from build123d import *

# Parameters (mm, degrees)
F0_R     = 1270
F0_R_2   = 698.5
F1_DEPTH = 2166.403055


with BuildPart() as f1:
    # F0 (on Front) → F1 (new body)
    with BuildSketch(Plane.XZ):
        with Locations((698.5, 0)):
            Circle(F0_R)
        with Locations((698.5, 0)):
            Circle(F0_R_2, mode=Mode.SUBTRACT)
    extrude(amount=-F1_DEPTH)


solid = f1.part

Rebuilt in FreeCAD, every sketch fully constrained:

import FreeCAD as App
import Part
import Sketcher
Q = App.Units.Quantity

doc = App.newDocument("Part")
body = doc.addObject("PartDesign::Body", "Body")

sketch1 = body.newObject("Sketcher::SketchObject", "Sketch")
sketch1.AttachmentSupport = (doc.getObject("XZ_Plane"), [""])
sketch1.MapMode = "FlatFace"
sketch1.addGeometry(Part.Circle(App.Vector(698, 0, 0), App.Vector(0, 0, 1), 1270), False)
sketch1.addGeometry(Part.Circle(App.Vector(698, 0, 0), App.Vector(0, 0, 1), 698), False)
sketch1.addConstraint(Sketcher.Constraint("Coincident", 1, 3, 0, 3))
sketch1.addConstraint(Sketcher.Constraint("PointOnObject", 0, 3, -1))
sketch1.addConstraint(Sketcher.Constraint("Diameter", 0, Q("100 in")))
sketch1.addConstraint(Sketcher.Constraint("Diameter", 1, Q("55 in")))
sketch1.addConstraint(Sketcher.Constraint("DistanceX", -1, 1, 0, 3, Q("27.5 in")))
pad1 = body.newObject("PartDesign::Pad", "Pad")
pad1.Profile = sketch1
pad1.Length = 2166.403055
pad1.Reversed = True

doc.recompute()
